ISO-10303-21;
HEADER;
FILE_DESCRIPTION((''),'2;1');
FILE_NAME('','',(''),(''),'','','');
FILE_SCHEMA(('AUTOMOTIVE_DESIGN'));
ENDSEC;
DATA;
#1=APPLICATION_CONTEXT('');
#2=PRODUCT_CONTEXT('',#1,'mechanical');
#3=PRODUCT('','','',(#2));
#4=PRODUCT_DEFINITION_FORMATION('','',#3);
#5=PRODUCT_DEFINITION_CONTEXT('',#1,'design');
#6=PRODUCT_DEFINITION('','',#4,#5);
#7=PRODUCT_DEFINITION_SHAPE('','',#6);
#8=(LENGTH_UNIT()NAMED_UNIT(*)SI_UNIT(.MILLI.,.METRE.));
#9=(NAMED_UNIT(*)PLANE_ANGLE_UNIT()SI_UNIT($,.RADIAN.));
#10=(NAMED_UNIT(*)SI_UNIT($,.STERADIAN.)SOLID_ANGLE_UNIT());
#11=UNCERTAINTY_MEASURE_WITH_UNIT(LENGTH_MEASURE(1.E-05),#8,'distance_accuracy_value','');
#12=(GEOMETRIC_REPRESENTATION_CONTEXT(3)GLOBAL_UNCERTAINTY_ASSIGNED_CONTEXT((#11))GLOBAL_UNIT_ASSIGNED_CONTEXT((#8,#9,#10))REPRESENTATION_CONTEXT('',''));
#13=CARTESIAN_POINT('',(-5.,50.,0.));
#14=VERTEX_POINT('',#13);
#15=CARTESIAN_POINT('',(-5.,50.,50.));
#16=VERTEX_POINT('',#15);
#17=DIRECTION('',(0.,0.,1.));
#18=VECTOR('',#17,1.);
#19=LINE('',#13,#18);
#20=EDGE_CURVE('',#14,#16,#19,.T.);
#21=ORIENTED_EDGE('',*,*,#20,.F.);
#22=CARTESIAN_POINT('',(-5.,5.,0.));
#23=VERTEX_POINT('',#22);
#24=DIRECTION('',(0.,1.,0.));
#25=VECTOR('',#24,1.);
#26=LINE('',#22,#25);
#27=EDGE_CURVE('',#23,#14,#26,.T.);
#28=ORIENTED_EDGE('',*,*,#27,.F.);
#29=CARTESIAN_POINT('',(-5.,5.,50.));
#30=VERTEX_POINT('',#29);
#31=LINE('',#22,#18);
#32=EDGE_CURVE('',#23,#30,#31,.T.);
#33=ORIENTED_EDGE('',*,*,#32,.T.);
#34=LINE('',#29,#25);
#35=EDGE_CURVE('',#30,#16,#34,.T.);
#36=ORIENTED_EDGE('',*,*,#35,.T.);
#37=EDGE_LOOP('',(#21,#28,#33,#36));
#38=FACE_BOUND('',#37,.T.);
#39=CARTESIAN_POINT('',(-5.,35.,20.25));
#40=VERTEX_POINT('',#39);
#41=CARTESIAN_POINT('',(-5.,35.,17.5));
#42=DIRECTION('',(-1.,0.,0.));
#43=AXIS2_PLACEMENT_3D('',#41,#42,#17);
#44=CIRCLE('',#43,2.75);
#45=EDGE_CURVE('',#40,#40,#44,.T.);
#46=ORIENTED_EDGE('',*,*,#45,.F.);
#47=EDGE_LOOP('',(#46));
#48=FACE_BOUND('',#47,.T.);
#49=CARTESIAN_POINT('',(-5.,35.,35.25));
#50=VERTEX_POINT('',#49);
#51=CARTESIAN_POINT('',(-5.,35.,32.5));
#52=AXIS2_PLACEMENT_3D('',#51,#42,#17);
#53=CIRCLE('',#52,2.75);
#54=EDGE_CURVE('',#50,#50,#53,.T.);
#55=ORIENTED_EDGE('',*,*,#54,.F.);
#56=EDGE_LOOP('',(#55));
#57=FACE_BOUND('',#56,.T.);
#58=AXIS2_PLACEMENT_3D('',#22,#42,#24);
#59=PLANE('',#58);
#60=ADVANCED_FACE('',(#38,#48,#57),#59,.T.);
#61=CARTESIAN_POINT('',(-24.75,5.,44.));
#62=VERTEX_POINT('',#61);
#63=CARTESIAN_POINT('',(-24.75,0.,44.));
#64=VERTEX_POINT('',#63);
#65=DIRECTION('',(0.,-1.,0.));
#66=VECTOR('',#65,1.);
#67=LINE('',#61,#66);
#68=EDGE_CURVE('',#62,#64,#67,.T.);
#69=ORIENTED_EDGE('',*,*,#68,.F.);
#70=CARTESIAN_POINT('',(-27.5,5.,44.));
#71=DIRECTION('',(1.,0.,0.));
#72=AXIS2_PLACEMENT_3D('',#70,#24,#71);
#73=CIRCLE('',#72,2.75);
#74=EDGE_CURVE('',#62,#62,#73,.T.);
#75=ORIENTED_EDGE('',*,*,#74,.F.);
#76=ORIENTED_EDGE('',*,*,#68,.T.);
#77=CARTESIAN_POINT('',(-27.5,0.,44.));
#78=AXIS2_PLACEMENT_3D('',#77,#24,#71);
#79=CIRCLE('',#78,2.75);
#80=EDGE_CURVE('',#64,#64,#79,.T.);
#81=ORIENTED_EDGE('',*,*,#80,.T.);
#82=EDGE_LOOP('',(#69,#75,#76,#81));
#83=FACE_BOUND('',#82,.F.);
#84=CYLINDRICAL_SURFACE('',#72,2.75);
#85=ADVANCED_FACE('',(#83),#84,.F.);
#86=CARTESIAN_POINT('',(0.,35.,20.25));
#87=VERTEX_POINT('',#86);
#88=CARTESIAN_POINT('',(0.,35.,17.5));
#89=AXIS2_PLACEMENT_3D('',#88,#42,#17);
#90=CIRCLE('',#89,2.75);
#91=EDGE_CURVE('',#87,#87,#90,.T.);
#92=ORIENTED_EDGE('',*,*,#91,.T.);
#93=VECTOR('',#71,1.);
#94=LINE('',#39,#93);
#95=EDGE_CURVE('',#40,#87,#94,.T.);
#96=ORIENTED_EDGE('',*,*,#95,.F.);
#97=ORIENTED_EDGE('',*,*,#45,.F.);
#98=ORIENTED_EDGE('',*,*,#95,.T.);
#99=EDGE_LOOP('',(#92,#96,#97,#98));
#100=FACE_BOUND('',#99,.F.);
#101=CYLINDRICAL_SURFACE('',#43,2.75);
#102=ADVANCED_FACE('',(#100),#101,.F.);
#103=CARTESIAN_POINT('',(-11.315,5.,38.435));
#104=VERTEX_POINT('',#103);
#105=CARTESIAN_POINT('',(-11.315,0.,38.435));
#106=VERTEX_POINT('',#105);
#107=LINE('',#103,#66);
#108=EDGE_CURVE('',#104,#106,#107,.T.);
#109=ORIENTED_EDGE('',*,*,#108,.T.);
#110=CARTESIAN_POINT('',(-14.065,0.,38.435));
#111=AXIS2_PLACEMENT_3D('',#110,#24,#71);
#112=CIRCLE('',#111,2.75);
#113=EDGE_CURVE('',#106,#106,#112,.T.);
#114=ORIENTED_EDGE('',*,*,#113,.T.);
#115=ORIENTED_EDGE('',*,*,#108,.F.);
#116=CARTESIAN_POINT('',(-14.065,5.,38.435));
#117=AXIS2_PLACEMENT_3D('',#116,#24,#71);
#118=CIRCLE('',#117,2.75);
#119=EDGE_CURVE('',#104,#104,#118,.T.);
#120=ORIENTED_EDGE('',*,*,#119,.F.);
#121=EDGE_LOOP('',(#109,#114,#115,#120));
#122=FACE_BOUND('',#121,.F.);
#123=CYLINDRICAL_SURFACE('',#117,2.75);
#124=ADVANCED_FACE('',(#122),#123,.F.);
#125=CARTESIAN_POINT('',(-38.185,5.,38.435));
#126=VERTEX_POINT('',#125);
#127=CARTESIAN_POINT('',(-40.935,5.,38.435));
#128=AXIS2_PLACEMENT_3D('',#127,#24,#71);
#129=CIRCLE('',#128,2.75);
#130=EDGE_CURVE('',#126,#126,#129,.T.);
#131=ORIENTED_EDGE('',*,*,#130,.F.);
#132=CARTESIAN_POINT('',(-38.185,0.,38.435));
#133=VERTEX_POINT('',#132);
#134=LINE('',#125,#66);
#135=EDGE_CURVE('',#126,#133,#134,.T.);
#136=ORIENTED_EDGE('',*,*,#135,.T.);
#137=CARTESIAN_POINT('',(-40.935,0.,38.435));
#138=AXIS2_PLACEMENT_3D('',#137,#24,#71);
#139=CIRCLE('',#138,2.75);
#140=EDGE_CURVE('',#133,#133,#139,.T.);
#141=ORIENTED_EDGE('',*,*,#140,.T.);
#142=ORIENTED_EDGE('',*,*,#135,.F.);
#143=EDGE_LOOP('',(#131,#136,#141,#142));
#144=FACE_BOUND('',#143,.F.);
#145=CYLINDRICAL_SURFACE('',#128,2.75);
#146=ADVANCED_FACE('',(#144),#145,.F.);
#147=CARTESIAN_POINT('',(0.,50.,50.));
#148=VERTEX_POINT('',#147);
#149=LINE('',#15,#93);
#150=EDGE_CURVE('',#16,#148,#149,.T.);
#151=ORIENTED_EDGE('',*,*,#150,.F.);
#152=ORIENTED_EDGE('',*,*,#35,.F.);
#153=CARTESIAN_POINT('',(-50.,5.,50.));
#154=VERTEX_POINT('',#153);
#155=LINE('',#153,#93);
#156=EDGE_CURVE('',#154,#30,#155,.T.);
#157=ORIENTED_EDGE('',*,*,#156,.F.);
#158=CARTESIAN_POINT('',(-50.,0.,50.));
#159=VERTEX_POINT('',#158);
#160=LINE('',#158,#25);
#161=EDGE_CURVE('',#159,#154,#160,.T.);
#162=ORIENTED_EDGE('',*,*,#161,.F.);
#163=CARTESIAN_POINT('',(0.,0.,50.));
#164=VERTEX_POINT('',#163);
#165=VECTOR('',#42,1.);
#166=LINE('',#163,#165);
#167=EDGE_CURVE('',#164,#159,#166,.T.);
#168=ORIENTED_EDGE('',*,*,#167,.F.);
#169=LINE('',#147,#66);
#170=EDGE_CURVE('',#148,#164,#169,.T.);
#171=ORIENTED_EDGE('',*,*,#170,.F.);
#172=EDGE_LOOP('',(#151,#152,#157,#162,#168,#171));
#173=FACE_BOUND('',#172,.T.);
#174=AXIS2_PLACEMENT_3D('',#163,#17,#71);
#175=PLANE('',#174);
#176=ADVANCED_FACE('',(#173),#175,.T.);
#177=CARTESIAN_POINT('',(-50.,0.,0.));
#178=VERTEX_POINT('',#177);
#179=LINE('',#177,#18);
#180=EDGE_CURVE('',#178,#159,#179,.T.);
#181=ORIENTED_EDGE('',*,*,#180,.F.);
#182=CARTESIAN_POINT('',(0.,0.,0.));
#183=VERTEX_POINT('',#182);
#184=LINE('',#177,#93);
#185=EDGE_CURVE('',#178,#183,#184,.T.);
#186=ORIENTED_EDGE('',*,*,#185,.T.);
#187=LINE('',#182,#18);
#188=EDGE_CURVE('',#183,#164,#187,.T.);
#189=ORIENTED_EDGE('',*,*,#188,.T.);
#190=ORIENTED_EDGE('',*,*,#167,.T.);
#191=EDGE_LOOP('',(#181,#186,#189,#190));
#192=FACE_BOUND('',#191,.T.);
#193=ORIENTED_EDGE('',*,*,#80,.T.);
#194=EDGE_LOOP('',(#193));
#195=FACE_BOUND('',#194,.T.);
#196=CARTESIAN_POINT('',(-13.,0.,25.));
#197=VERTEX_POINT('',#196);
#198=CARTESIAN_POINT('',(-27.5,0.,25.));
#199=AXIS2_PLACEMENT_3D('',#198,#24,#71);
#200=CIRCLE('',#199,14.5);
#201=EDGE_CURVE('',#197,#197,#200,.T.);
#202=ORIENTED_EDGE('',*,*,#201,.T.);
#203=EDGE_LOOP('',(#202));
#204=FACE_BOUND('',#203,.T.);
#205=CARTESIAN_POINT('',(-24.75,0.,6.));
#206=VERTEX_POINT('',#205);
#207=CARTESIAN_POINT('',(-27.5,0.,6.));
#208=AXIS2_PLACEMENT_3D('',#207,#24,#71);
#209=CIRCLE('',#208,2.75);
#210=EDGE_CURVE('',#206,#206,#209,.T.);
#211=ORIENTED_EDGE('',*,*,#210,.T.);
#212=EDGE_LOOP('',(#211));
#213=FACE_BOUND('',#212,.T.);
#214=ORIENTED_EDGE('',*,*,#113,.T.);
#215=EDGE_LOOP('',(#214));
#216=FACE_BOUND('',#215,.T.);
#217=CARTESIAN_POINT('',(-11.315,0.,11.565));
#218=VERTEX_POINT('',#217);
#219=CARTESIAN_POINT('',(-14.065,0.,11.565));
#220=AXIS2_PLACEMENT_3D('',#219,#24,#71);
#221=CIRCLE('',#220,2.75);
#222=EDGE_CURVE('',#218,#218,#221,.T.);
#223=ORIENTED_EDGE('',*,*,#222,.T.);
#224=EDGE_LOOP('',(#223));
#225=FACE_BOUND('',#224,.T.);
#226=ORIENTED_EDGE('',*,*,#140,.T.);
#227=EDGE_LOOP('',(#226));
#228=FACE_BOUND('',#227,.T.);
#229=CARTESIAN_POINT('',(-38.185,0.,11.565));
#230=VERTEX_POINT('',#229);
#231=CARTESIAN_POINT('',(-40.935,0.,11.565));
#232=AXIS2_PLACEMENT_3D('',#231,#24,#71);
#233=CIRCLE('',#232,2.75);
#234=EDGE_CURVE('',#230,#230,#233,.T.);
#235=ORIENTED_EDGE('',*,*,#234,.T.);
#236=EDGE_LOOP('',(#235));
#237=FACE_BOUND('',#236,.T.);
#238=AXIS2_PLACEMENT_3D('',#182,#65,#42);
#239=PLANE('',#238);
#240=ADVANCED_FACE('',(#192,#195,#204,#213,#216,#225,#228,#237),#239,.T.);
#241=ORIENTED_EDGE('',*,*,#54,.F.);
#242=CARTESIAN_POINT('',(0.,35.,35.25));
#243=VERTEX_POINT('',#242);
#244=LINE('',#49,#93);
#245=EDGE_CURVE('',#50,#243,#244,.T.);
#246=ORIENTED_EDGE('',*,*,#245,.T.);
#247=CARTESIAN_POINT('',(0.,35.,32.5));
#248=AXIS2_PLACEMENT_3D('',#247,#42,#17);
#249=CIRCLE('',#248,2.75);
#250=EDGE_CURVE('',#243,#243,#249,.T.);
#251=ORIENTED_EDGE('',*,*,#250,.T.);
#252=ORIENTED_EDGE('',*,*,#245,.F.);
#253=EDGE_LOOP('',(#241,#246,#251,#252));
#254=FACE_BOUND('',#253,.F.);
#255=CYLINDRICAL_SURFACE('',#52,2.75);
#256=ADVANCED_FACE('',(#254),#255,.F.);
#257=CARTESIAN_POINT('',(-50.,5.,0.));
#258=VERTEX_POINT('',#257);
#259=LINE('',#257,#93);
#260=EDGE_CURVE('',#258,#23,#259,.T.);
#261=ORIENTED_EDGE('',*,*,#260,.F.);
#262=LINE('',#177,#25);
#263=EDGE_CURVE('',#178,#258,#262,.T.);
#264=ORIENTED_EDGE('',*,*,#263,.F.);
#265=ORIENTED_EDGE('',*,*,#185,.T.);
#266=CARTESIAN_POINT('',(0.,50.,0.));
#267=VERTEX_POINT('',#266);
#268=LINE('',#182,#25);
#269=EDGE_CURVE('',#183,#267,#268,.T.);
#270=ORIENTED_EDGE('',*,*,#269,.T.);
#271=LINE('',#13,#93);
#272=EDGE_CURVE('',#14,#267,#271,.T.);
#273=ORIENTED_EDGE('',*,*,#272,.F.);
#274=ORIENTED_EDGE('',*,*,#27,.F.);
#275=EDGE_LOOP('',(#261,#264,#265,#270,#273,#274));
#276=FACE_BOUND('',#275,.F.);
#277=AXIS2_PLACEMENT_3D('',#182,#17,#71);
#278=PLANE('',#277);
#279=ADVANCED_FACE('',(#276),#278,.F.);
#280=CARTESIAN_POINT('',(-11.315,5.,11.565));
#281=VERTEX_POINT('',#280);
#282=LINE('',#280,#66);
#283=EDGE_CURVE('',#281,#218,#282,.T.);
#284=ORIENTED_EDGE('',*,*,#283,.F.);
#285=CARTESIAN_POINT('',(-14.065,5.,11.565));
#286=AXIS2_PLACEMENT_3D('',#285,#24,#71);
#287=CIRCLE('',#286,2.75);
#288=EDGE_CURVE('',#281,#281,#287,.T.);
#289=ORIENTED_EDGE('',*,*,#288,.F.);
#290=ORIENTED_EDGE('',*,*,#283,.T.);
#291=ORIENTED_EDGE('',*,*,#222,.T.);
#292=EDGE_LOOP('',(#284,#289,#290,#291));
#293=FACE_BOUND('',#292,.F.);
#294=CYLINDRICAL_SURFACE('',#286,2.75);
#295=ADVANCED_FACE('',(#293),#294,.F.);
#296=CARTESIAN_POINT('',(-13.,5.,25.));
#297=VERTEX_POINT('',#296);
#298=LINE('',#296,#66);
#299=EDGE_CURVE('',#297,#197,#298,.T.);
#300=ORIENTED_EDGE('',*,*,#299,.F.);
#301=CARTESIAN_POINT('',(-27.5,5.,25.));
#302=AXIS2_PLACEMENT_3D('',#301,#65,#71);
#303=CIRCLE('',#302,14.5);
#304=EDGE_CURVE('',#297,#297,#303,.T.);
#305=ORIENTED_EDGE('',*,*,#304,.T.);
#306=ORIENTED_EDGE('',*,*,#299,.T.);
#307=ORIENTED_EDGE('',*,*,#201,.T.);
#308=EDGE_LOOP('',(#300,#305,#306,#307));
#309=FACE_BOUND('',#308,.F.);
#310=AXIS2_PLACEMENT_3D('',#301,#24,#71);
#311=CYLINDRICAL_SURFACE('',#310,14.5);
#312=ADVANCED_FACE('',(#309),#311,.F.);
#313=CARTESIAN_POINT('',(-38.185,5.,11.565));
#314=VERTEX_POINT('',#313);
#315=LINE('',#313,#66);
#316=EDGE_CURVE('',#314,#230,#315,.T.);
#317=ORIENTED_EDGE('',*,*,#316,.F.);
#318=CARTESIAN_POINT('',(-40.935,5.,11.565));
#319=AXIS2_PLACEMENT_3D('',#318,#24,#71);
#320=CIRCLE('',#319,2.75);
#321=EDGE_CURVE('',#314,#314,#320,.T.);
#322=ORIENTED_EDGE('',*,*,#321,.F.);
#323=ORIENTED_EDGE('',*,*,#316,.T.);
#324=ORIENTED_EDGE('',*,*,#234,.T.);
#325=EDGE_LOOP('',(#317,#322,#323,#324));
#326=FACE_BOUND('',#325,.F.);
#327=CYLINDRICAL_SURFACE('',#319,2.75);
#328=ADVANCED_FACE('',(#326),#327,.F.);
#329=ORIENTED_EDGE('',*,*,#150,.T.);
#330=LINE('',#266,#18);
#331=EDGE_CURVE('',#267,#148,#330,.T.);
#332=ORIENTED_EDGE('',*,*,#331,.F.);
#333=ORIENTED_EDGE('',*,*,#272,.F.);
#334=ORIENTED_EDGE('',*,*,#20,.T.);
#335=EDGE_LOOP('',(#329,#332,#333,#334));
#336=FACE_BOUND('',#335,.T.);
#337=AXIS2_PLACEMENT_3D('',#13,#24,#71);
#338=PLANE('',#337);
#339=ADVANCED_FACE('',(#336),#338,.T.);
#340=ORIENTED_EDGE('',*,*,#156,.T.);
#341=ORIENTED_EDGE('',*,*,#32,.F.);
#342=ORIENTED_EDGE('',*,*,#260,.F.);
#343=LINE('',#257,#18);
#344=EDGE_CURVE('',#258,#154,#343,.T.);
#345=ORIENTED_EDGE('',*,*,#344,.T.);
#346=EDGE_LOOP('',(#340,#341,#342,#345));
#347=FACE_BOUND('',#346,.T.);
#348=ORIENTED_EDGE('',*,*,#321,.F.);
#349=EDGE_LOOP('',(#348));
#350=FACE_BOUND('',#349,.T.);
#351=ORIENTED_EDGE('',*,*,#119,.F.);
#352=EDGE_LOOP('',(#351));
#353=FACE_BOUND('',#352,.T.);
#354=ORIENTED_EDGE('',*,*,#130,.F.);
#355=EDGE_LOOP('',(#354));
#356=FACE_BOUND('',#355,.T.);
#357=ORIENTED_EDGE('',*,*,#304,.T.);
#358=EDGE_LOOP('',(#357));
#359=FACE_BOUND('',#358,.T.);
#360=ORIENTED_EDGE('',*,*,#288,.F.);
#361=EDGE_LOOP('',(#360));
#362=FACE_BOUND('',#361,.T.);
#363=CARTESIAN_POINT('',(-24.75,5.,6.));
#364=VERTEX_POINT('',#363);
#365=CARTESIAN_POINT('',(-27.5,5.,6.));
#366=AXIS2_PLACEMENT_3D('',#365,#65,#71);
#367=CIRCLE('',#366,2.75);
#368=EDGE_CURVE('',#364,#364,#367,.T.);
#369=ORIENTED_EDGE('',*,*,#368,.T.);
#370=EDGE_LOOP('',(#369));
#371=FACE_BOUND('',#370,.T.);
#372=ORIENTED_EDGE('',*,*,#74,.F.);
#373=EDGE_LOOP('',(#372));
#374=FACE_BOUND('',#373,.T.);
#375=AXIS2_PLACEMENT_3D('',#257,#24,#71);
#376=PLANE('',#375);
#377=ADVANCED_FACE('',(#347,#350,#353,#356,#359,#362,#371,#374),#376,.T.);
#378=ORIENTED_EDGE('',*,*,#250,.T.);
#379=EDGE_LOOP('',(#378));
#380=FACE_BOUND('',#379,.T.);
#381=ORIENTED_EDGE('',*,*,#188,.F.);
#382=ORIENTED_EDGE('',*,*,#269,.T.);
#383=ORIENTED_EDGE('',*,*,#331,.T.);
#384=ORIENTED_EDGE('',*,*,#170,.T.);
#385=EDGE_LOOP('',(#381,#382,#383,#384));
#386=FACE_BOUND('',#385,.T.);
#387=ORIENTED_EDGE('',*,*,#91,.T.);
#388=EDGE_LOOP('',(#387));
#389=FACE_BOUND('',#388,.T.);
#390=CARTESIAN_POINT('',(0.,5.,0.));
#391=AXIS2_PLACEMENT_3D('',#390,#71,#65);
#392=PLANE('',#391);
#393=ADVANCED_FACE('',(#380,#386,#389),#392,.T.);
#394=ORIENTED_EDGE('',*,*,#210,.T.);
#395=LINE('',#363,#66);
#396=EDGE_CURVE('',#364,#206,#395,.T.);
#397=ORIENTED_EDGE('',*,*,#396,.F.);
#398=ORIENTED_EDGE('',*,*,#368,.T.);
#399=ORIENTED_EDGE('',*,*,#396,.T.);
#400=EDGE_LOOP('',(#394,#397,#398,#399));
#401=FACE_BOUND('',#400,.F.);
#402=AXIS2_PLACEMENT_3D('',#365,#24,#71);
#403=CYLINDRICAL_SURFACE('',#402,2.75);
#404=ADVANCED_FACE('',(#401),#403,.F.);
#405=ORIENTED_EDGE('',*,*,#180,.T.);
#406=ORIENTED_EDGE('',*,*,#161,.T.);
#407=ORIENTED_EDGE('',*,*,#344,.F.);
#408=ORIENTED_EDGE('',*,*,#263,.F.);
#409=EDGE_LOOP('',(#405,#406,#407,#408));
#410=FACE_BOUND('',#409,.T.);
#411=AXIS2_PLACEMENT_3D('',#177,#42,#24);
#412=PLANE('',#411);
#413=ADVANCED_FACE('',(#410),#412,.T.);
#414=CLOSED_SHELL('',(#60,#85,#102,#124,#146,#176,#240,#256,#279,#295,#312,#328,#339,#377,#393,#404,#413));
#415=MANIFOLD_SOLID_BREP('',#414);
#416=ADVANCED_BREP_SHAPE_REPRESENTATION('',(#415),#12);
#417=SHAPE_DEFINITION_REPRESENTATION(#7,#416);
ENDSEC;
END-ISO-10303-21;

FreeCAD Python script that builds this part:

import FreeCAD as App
import Part
import Sketcher

V = App.Vector
Q = App.Units.Quantity


def add_polygon(sketch, points):
    """Adds a closed chain of lines whose ends are joined by coincident constraints."""
    first, n = sketch.GeometryCount, len(points)
    for a, b in zip(points, points[1:] + points[:1]):
        sketch.addGeometry(Part.LineSegment(App.Vector(*a, 0), App.Vector(*b, 0)), False)
    for i in range(n):
        sketch.addConstraint(Sketcher.Constraint("Coincident", first + i, 2, first + (i + 1) % n, 1))

doc = App.newDocument("Part")
body = doc.addObject("PartDesign::Body", "Body")

# Sketch on XY plane
sketch1 = body.newObject("Sketcher::SketchObject", "Sketch")
sketch1.AttachmentSupport = (doc.getObject("XY_Plane"), [""])
sketch1.MapMode = "FlatFace"
add_polygon(sketch1, [(-50, 0), (0, 0), (0, 50), (-5, 50), (-5, 5), (-50, 5)])  # lines 0-5
sketch1.addConstraint([
    Sketcher.Constraint("Horizontal", 0),
    Sketcher.Constraint("Vertical", 1),
    Sketcher.Constraint("Horizontal", 2),
    Sketcher.Constraint("Vertical", 3),
    Sketcher.Constraint("Horizontal", 4),
    Sketcher.Constraint("Vertical", 5),
    Sketcher.Constraint("Coincident", 0, 2, -1, 1),
    Sketcher.Constraint("Equal", 0, 1),
    Sketcher.Constraint("Equal", 4, 3),
    Sketcher.Constraint("DistanceX", 0, 1, 0, 2, Q("50 mm")),
    Sketcher.Constraint("DistanceX", 2, 2, 2, 1, Q("5 mm")),
])
pad1 = body.newObject("PartDesign::Pad", "Pad")
pad1.Profile = sketch1
pad1.Length = 50

# Sketch on XZ plane
sketch2 = body.newObject("Sketcher::SketchObject", "Sketch001")
sketch2.AttachmentSupport = (doc.getObject("XZ_Plane"), [""])
sketch2.MapMode = "FlatFace"
sketch2.AttachmentOffset = App.Placement(V(0, 0, -5), App.Rotation())
sketch2.addGeometry([
    Part.Circle(V(-27.5, 25, 0), V(0, 0, 1), 14.5),  # 0
    Part.Circle(V(-27.5, 6, 0), V(0, 0, 1), 2.8),  # 1
    Part.Circle(V(-14.1, 38.4, 0), V(0, 0, 1), 2.8),  # 2
    Part.Circle(V(-40.9, 38.4, 0), V(0, 0, 1), 2.8),  # 3
    Part.Circle(V(-27.5, 44, 0), V(0, 0, 1), 2.8),  # 4
    Part.Circle(V(-14.1, 11.6, 0), V(0, 0, 1), 2.8),  # 5
    Part.Circle(V(-40.9, 11.6, 0), V(0, 0, 1), 2.8),  # 6
], False)
sketch2.addConstraint([
    Sketcher.Constraint("Equal", 1, 2),
    Sketcher.Constraint("Equal", 2, 3),
    Sketcher.Constraint("Equal", 3, 4),
    Sketcher.Constraint("Equal", 4, 5),
    Sketcher.Constraint("Equal", 5, 6),
    Sketcher.Constraint("Horizontal", 2, 3, 3, 3),
    Sketcher.Constraint("Horizontal", 5, 3, 6, 3),
    Sketcher.Constraint("Vertical", 0, 3, 1, 3),
    Sketcher.Constraint("Vertical", 1, 3, 4, 3),
    Sketcher.Constraint("Vertical", 2, 3, 5, 3),
    Sketcher.Constraint("Vertical", 3, 3, 6, 3),
    Sketcher.Constraint("Diameter", 0, Q("29 mm")),
    Sketcher.Constraint("Diameter", 1, Q("5.5 mm")),
    Sketcher.Constraint("DistanceY", -1, 1, 0, 3, Q("25 mm")),
    Sketcher.Constraint("DistanceY", 1, 3, 0, 3, Q("19 mm")),
    Sketcher.Constraint("DistanceY", 0, 3, 4, 3, Q("19 mm")),
    Sketcher.Constraint("DistanceX", 0, 3, 2, 3, Q("13.435 mm")),
    Sketcher.Constraint("DistanceY", 0, 3, 2, 3, Q("13.435 mm")),
    Sketcher.Constraint("DistanceX", 3, 3, 0, 3, Q("13.435 mm")),
    Sketcher.Constraint("DistanceY", 5, 3, 0, 3, Q("13.435 mm")),
    Sketcher.Constraint("DistanceX", 0, 3, -1, 1, Q("27.5 mm")),
])
pocket1 = body.newObject("PartDesign::Pocket", "Pocket")
pocket1.Profile = sketch2
pocket1.Length = 20
pocket1.Reversed = True

# Sketch on YZ plane
sketch3 = body.newObject("Sketcher::SketchObject", "Sketch002")
sketch3.AttachmentSupport = (doc.getObject("YZ_Plane"), [""])
sketch3.MapMode = "FlatFace"
sketch3.AttachmentOffset = App.Placement(V(0, 0, -5), App.Rotation())
sketch3.addGeometry([
    Part.Circle(V(35, 17.5, 0), V(0, 0, 1), 2.8),
    Part.Circle(V(35, 32.5, 0), V(0, 0, 1), 2.8),
], False)
sketch3.addConstraint([
    Sketcher.Constraint("Equal", 0, 1),
    Sketcher.Constraint("Vertical", 0, 3, 1, 3),
    Sketcher.Constraint("Diameter", 0, Q("5.5 mm")),
    Sketcher.Constraint("DistanceY", 0, 3, 1, 3, Q("15 mm")),
    Sketcher.Constraint("DistanceY", -1, 1, 0, 3, Q("17.5 mm")),
    Sketcher.Constraint("DistanceX", -1, 1, 0, 3, Q("35 mm")),
])
pocket2 = body.newObject("PartDesign::Pocket", "Pocket001")
pocket2.Profile = sketch3
pocket2.Length = 20
pocket2.Reversed = True

doc.recompute()
